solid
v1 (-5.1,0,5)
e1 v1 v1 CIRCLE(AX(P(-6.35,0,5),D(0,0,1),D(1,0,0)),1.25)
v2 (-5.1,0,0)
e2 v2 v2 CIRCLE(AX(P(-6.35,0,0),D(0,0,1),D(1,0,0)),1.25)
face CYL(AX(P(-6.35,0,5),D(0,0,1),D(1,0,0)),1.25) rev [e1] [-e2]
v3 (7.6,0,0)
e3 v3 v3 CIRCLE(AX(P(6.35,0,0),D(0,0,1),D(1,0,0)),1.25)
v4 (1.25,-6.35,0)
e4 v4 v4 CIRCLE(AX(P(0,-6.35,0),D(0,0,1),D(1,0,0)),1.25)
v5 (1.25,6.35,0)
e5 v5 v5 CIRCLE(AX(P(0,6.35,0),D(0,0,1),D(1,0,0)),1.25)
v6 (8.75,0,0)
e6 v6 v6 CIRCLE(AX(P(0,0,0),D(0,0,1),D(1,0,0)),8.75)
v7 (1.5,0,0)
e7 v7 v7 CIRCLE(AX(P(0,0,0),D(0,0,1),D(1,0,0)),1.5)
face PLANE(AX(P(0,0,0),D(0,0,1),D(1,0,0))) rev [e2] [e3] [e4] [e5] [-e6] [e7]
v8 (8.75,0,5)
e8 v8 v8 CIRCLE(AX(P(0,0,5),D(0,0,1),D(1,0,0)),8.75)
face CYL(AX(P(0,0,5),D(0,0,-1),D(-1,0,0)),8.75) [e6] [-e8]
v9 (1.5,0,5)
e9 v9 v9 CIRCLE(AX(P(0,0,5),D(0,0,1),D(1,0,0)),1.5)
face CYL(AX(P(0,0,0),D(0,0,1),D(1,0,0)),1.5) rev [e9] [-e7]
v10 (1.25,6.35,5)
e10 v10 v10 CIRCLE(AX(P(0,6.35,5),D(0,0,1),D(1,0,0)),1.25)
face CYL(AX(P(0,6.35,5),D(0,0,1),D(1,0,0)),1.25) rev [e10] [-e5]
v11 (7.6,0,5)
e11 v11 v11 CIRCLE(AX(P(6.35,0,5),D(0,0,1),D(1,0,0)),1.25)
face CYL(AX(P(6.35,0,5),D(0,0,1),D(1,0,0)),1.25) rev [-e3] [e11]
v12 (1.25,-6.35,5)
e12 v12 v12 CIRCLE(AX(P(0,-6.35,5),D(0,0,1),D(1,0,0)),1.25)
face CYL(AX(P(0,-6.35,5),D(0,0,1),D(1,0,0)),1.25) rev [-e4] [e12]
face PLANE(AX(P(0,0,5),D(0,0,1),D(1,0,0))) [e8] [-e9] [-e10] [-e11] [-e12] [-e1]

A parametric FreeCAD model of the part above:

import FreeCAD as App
import Part
import Sketcher

doc = App.newDocument("Part")
body = doc.addObject("PartDesign::Body", "Body")

# Sketch on XY plane
sketch1 = body.newObject("Sketcher::SketchObject", "Sketch")
sketch1.AttachmentSupport = (doc.getObject("XY_Plane"), [""])
sketch1.MapMode = "FlatFace"
sketch1.addGeometry(Part.Circle(App.Vector(0, 0, 0), App.Vector(0, 0, 1), 9), False)
sketch1.addConstraint(Sketcher.Constraint("Coincident", 0, 3, -1, 1))
sketch1.addConstraint(Sketcher.Constraint("Diameter", 0, 17.5))
pad1 = body.newObject("PartDesign::Pad", "Pad")
pad1.Profile = sketch1
pad1.Length = 5

# Sketch on XY plane
sketch2 = body.newObject("Sketcher::SketchObject", "Sketch001")
sketch2.AttachmentSupport = (doc.getObject("XY_Plane"), [""])
sketch2.MapMode = "FlatFace"
sketch2.AttachmentOffset = App.Placement(App.Vector(0, 0, 5), App.Rotation())
sketch2.addGeometry(Part.Circle(App.Vector(0, 6.3, 0), App.Vector(0, 0, 1), 1.2), False)
sketch2.addGeometry(Part.Circle(App.Vector(6.3, 0, 0), App.Vector(0, 0, 1), 1.2), False)
sketch2.addGeometry(Part.Circle(App.Vector(0, -6.3, 0), App.Vector(0, 0, 1), 1.2), False)
sketch2.addGeometry(Part.Circle(App.Vector(-6.3, 0, 0), App.Vector(0, 0, 1), 1.2), False)
sketch2.addConstraint(Sketcher.Constraint("Equal", 0, 1))
sketch2.addConstraint(Sketcher.Constraint("Equal", 1, 2))
sketch2.addConstraint(Sketcher.Constraint("Equal", 2, 3))
sketch2.addConstraint(Sketcher.Constraint("Symmetric", 0, 3, 2, 3, -1, 1))
sketch2.addConstraint(Sketcher.Constraint("Symmetric", 1, 3, 3, 3, -1, 1))
sketch2.addConstraint(Sketcher.Constraint("PointOnObject", 0, 3, -2))
sketch2.addConstraint(Sketcher.Constraint("PointOnObject", 1, 3, -1))
sketch2.addConstraint(Sketcher.Constraint("Diameter", 0, 2.5))
sketch2.addConstraint(Sketcher.Constraint("DistanceY", 2, 3, 0, 3, 12.7))
sketch2.addConstraint(Sketcher.Constraint("DistanceX", 3, 3, 1, 3, 12.7))
doc.recompute()
hole = body.newObject("PartDesign::Hole", "Hole")
hole.Profile = sketch2
hole.ThreadType = "None"
hole.Diameter = 2.5
hole.DepthType = "Dimension"
hole.Depth = 5
hole.DrillPoint = "Flat"

# Sketch on XY plane
sketch3 = body.newObject("Sketcher::SketchObject", "Sketch002")
sketch3.AttachmentSupport = (doc.getObject("XY_Plane"), [""])
sketch3.MapMode = "FlatFace"
sketch3.AttachmentOffset = App.Placement(App.Vector(0, 0, 5), App.Rotation())
sketch3.addGeometry(Part.Circle(App.Vector(0, 0, 0), App.Vector(0, 0, 1), 1.5), False)
sketch3.addConstraint(Sketcher.Constraint("Coincident", 0, 3, -1, 1))
sketch3.addConstraint(Sketcher.Constraint("Diameter", 0, 3.0))
pocket1 = body.newObject("PartDesign::Pocket", "Pocket")
pocket1.Profile = sketch3
pocket1.Type = "ThroughAll"

doc.recompute()
